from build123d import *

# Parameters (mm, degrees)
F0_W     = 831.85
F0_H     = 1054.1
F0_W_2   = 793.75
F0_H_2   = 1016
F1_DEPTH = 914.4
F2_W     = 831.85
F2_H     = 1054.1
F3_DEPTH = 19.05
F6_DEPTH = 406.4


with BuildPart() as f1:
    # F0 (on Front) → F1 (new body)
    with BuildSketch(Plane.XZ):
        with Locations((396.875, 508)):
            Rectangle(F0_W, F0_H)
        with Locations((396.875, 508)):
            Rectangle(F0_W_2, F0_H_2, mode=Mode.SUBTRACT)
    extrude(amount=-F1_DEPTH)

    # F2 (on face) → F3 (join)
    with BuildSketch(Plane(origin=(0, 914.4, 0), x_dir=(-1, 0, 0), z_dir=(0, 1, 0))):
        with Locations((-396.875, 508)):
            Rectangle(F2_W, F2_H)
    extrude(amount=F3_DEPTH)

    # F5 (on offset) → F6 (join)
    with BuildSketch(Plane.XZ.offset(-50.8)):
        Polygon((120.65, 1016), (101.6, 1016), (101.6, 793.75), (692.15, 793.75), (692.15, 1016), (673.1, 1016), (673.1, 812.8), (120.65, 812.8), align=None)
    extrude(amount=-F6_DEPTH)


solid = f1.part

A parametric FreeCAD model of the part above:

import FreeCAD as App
import Part
import Sketcher
from FreeCAD import Vector
Q = App.Units.Quantity

doc = App.newDocument("Part")
body = doc.addObject("PartDesign::Body", "Body")

sketch1 = doc.addObject("Sketcher::SketchObject", "Sketch")
body.addObject(sketch1)
sketch1.AttachmentSupport = (doc.XZ_Plane, [""])
sketch1.MapMode = "FlatFace"
sketch1.addGeometry(Part.LineSegment(Vector(-19, 1035, 0), Vector(-19, -19, 0)), False)
sketch1.addGeometry(Part.LineSegment(Vector(-19, -19, 0), Vector(813, -19, 0)), False)
sketch1.addGeometry(Part.LineSegment(Vector(813, -19, 0), Vector(813, 1035, 0)), False)
sketch1.addGeometry(Part.LineSegment(Vector(813, 1035, 0), Vector(-19, 1035, 0)), False)
sketch1.addGeometry(Part.LineSegment(Vector(794, 0, 0), Vector(0, 0, 0)), False)
sketch1.addGeometry(Part.LineSegment(Vector(0, 0, 0), Vector(0, 1016, 0)), False)
sketch1.addGeometry(Part.LineSegment(Vector(0, 1016, 0), Vector(794, 1016, 0)), False)
sketch1.addGeometry(Part.LineSegment(Vector(794, 1016, 0), Vector(794, 0, 0)), False)
sketch1.addConstraint(Sketcher.Constraint("Coincident", 0, 2, 1, 1))
sketch1.addConstraint(Sketcher.Constraint("Coincident", 1, 2, 2, 1))
sketch1.addConstraint(Sketcher.Constraint("Coincident", 2, 2, 3, 1))
sketch1.addConstraint(Sketcher.Constraint("Coincident", 3, 2, 0, 1))
sketch1.addConstraint(Sketcher.Constraint("Coincident", 4, 2, 5, 1))
sketch1.addConstraint(Sketcher.Constraint("Coincident", 5, 2, 6, 1))
sketch1.addConstraint(Sketcher.Constraint("Coincident", 6, 2, 7, 1))
sketch1.addConstraint(Sketcher.Constraint("Coincident", 7, 2, 4, 1))
sketch1.addConstraint(Sketcher.Constraint("Vertical", 0))
sketch1.addConstraint(Sketcher.Constraint("Horizontal", 1))
sketch1.addConstraint(Sketcher.Constraint("Vertical", 2))
sketch1.addConstraint(Sketcher.Constraint("Horizontal", 3))
sketch1.addConstraint(Sketcher.Constraint("Horizontal", 4))
sketch1.addConstraint(Sketcher.Constraint("Vertical", 5))
sketch1.addConstraint(Sketcher.Constraint("Horizontal", 6))
sketch1.addConstraint(Sketcher.Constraint("Vertical", 7))
sketch1.addConstraint(Sketcher.Constraint("Coincident", 4, 2, -1, 1))
sketch1.addConstraint(Sketcher.Constraint("DistanceY", 5, 1, 5, 2, Q("40 in")))
sketch1.addConstraint(Sketcher.Constraint("DistanceY", 0, 2, 0, 1, Q("41.5 in")))
sketch1.addConstraint(Sketcher.Constraint("DistanceX", -1, 1, 1, 2, Q("32 in")))
sketch1.addConstraint(Sketcher.Constraint("DistanceX", 3, 2, 6, 2, Q("32 in")))
sketch1.addConstraint(Sketcher.Constraint("DistanceX", 1, 1, 1, 2, Q("32.75 in")))
sketch1.addConstraint(Sketcher.Constraint("DistanceY", 0, 2, -1, 1, Q("0.75 in")))
pad1 = doc.addObject("PartDesign::Pad", "Pad")
body.addObject(pad1)
pad1.Profile = sketch1
pad1.Length = Q("36 in")
pad1.Reversed = True

sketch2 = doc.addObject("Sketcher::SketchObject", "Sketch001")
body.addObject(sketch2)
sketch2.AttachmentSupport = (doc.XZ_Plane, [""])
sketch2.MapMode = "FlatFace"
sketch2.AttachmentOffset = App.Placement(Vector(0, 0, -36 * 25.4), App.Rotation())
sketch2.addGeometry(Part.LineSegment(Vector(813, 1035, 0), Vector(813, -19, 0)), False)
sketch2.addGeometry(Part.LineSegment(Vector(813, -19, 0), Vector(-19, -19, 0)), False)
sketch2.addGeometry(Part.LineSegment(Vector(-19, -19, 0), Vector(-19, 1035, 0)), False)
sketch2.addGeometry(Part.LineSegment(Vector(-19, 1035, 0), Vector(813, 1035, 0)), False)
sketch2.addConstraint(Sketcher.Constraint("Coincident", 0, 2, 1, 1))
sketch2.addConstraint(Sketcher.Constraint("Coincident", 1, 2, 2, 1))
sketch2.addConstraint(Sketcher.Constraint("Coincident", 2, 2, 3, 1))
sketch2.addConstraint(Sketcher.Constraint("Coincident", 3, 2, 0, 1))
sketch2.addConstraint(Sketcher.Constraint("Vertical", 0))
sketch2.addConstraint(Sketcher.Constraint("Horizontal", 1))
sketch2.addConstraint(Sketcher.Constraint("Vertical", 2))
sketch2.addConstraint(Sketcher.Constraint("Horizontal", 3))
sketch2.addConstraint(Sketcher.Constraint("DistanceY", 0, 2, 0, 1, Q("41.5 in")))
sketch2.addConstraint(Sketcher.Constraint("DistanceX", -1, 1, 0, 2, Q("32 in")))
sketch2.addConstraint(Sketcher.Constraint("DistanceX", 1, 2, 1, 1, Q("32.75 in")))
sketch2.addConstraint(Sketcher.Constraint("DistanceY", 0, 2, -1, 1, Q("0.75 in")))
pad2 = doc.addObject("PartDesign::Pad", "Pad001")
body.addObject(pad2)
pad2.Profile = sketch2
pad2.Length = Q("0.75 in")
pad2.Reversed = True

sketch3 = doc.addObject("Sketcher::SketchObject", "Sketch002")
body.addObject(sketch3)
sketch3.AttachmentSupport = (doc.XZ_Plane, [""])
sketch3.MapMode = "FlatFace"
sketch3.AttachmentOffset = App.Placement(Vector(0, 0, -2 * 25.4), App.Rotation())
sketch3.addGeometry(Part.LineSegment(Vector(121, 1016, 0), Vector(102, 1016, 0)), False)
sketch3.addGeometry(Part.LineSegment(Vector(102, 1016, 0), Vector(102, 794, 0)), False)
sketch3.addGeometry(Part.LineSegment(Vector(102, 794, 0), Vector(692, 794, 0)), False)
sketch3.addGeometry(Part.LineSegment(Vector(692, 794, 0), Vector(692, 1016, 0)), False)
sketch3.addGeometry(Part.LineSegment(Vector(692, 1016, 0), Vector(673, 1016, 0)), False)
sketch3.addGeometry(Part.LineSegment(Vector(673, 1016, 0), Vector(673, 813, 0)), False)
sketch3.addGeometry(Part.LineSegment(Vector(673, 813, 0), Vector(121, 813, 0)), False)
sketch3.addGeometry(Part.LineSegment(Vector(121, 813, 0), Vector(121, 1016, 0)), False)
sketch3.addConstraint(Sketcher.Constraint("Coincident", 0, 2, 1, 1))
sketch3.addConstraint(Sketcher.Constraint("Coincident", 1, 2, 2, 1))
sketch3.addConstraint(Sketcher.Constraint("Coincident", 2, 2, 3, 1))
sketch3.addConstraint(Sketcher.Constraint("Coincident", 3, 2, 4, 1))
sketch3.addConstraint(Sketcher.Constraint("Coincident", 4, 2, 5, 1))
sketch3.addConstraint(Sketcher.Constraint("Coincident", 5, 2, 6, 1))
sketch3.addConstraint(Sketcher.Constraint("Coincident", 6, 2, 7, 1))
sketch3.addConstraint(Sketcher.Constraint("Coincident", 7, 2, 0, 1))
sketch3.addConstraint(Sketcher.Constraint("Horizontal", 0))
sketch3.addConstraint(Sketcher.Constraint("Vertical", 1))
sketch3.addConstraint(Sketcher.Constraint("Horizontal", 2))
sketch3.addConstraint(Sketcher.Constraint("Vertical", 3))
sketch3.addConstraint(Sketcher.Constraint("Horizontal", 4))
sketch3.addConstraint(Sketcher.Constraint("Vertical", 5))
sketch3.addConstraint(Sketcher.Constraint("Horizontal", 6))
sketch3.addConstraint(Sketcher.Constraint("Vertical", 7))
sketch3.addConstraint(Sketcher.Constraint("Horizontal", 0, 2, 3, 2))
sketch3.addConstraint(Sketcher.Constraint("Equal", 0, 4))
sketch3.addConstraint(Sketcher.Constraint("DistanceY", 5, 2, 5, 1, Q("8 in")))
sketch3.addConstraint(Sketcher.Constraint("DistanceX", -1, 1, 0, 2, Q("4 in")))
sketch3.addConstraint(Sketcher.Constraint("DistanceY", -1, 1, 0, 2, Q("40 in")))
sketch3.addConstraint(Sketcher.Constraint("DistanceX", 0, 2, 0, 1, Q("0.75 in")))
sketch3.addConstraint(Sketcher.Constraint("DistanceX", 2, 1, 2, 2, Q("23.25 in")))
sketch3.addConstraint(Sketcher.Constraint("DistanceY", 1, 2, 1, 1, Q("8.75 in")))
pad3 = doc.addObject("PartDesign::Pad", "Pad002")
body.addObject(pad3)
pad3.Profile = sketch3
pad3.Length = Q("16 in")
pad3.Reversed = True

doc.recompute()
